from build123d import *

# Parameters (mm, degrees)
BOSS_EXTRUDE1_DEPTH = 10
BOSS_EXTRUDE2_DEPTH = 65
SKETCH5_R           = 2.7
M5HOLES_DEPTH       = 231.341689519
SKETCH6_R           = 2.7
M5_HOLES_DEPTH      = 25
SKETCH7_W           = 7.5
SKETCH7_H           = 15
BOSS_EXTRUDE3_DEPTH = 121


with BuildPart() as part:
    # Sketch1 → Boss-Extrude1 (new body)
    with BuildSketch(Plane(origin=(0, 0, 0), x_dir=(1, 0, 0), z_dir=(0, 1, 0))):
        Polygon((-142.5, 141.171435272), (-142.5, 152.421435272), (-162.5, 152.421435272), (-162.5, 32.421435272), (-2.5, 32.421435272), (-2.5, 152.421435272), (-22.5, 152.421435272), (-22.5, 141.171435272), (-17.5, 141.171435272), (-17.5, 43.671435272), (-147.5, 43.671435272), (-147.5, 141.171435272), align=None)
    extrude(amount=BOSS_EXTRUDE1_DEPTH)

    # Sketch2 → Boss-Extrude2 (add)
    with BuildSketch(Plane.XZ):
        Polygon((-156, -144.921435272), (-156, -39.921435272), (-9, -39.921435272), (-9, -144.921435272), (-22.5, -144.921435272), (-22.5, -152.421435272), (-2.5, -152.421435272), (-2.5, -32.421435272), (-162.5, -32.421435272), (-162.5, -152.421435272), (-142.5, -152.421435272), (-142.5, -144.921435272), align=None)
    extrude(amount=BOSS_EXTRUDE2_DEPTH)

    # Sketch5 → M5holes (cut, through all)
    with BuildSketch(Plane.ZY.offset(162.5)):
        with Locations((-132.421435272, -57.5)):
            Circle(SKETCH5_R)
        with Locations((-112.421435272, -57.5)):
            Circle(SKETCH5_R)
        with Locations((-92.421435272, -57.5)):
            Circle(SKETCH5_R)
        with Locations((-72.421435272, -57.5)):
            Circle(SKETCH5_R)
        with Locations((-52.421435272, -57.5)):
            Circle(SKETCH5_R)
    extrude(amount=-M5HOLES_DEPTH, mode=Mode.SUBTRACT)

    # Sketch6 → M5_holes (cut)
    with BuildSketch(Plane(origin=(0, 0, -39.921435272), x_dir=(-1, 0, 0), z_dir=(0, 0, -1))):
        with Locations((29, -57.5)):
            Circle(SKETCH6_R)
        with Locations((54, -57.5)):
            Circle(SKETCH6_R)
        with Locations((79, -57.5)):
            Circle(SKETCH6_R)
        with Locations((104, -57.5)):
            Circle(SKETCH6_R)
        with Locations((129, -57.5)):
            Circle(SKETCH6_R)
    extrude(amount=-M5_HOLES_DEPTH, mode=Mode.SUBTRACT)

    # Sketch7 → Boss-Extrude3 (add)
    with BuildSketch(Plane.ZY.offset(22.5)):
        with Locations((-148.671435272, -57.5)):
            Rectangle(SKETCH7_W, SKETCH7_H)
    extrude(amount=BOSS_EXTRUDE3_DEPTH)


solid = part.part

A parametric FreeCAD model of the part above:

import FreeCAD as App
import Part
import Sketcher


def add_polygon(sketch, points):
    """Adds a closed chain of lines whose ends are joined by coincident constraints."""
    first, n = sketch.GeometryCount, len(points)
    for a, b in zip(points, points[1:] + points[:1]):
        sketch.addGeometry(Part.LineSegment(App.Vector(*a, 0), App.Vector(*b, 0)), False)
    for i in range(n):
        sketch.addConstraint(Sketcher.Constraint("Coincident", first + i, 2, first + (i + 1) % n, 1))

doc = App.newDocument("Part")
body = doc.addObject("PartDesign::Body", "Body")

# Sketch on XZ plane
sketch1 = body.newObject("Sketcher::SketchObject", "Sketch")
sketch1.AttachmentSupport = (doc.getObject("XZ_Plane"), [""])
sketch1.MapMode = "FlatFace"
add_polygon(sketch1, [(-142.5, -141.171435), (-142.5, -152.421435), (-162.5, -152.421435), (-162.5, -32.421435), (-2.5, -32.421435), (-2.5, -152.421435), (-22.5, -152.421435), (-22.5, -141.171435), (-17.5, -141.171435), (-17.5, -43.671435), (-147.5, -43.671435), (-147.5, -141.171435)])  # lines 0-11
sketch1.addConstraint(Sketcher.Constraint("Vertical", 0))
sketch1.addConstraint(Sketcher.Constraint("Horizontal", 1))
sketch1.addConstraint(Sketcher.Constraint("Vertical", 2))
sketch1.addConstraint(Sketcher.Constraint("Horizontal", 3))
sketch1.addConstraint(Sketcher.Constraint("Vertical", 4))
sketch1.addConstraint(Sketcher.Constraint("Horizontal", 5))
sketch1.addConstraint(Sketcher.Constraint("Vertical", 6))
sketch1.addConstraint(Sketcher.Constraint("Horizontal", 7))
sketch1.addConstraint(Sketcher.Constraint("Vertical", 8))
sketch1.addConstraint(Sketcher.Constraint("Horizontal", 9))
sketch1.addConstraint(Sketcher.Constraint("Vertical", 10))
sketch1.addConstraint(Sketcher.Constraint("Horizontal", 11))
sketch1.addConstraint(Sketcher.Constraint("Horizontal", 1, 2, 4, 2))
sketch1.addConstraint(Sketcher.Constraint("Horizontal", 7, 2, 10, 2))
sketch1.addConstraint(Sketcher.Constraint("Equal", 1, 5))
sketch1.addConstraint(Sketcher.Constraint("Equal", 7, 11))
sketch1.addConstraint(Sketcher.Constraint("DistanceX", 1, 2, 1, 1, 20.0))
sketch1.addConstraint(Sketcher.Constraint("DistanceX", 3, 1, 3, 2, 160.0))
sketch1.addConstraint(Sketcher.Constraint("DistanceX", 7, 1, 7, 2, 5.0))
sketch1.addConstraint(Sketcher.Constraint("DistanceY", 2, 1, 2, 2, 120.0))
sketch1.addConstraint(Sketcher.Constraint("DistanceY", 8, 1, 8, 2, 97.5))
sketch1.addConstraint(Sketcher.Constraint("DistanceY", 0, 2, 0, 1, 11.25))
sketch1.addConstraint(Sketcher.Constraint("DistanceX", 0, 2, -1, 1, 142.5))
sketch1.addConstraint(Sketcher.Constraint("DistanceY", 0, 2, -1, 1, 152.421435))
pad1 = body.newObject("PartDesign::Pad", "Pad")
pad1.Profile = sketch1
pad1.Length = 10
pad1.Reversed = True

# Sketch on XZ plane
sketch2 = body.newObject("Sketcher::SketchObject", "Sketch001")
sketch2.AttachmentSupport = (doc.getObject("XZ_Plane"), [""])
sketch2.MapMode = "FlatFace"
add_polygon(sketch2, [(-156, -144.921435), (-156, -39.921435), (-9, -39.921435), (-9, -144.921435), (-22.5, -144.921435), (-22.5, -152.421435), (-2.5, -152.421435), (-2.5, -32.421435), (-162.5, -32.421435), (-162.5, -152.421435), (-142.5, -152.421435), (-142.5, -144.921435)])  # lines 0-11
sketch2.addConstraint(Sketcher.Constraint("Vertical", 0))
sketch2.addConstraint(Sketcher.Constraint("Horizontal", 1))
sketch2.addConstraint(Sketcher.Constraint("Vertical", 2))
sketch2.addConstraint(Sketcher.Constraint("Horizontal", 3))
sketch2.addConstraint(Sketcher.Constraint("Vertical", 4))
sketch2.addConstraint(Sketcher.Constraint("Horizontal", 5))
sketch2.addConstraint(Sketcher.Constraint("Vertical", 6))
sketch2.addConstraint(Sketcher.Constraint("Horizontal", 7))
sketch2.addConstraint(Sketcher.Constraint("Vertical", 8))
sketch2.addConstraint(Sketcher.Constraint("Horizontal", 9))
sketch2.addConstraint(Sketcher.Constraint("Vertical", 10))
sketch2.addConstraint(Sketcher.Constraint("Horizontal", 11))
sketch2.addConstraint(Sketcher.Constraint("Horizontal", 5, 2, 8, 2))
sketch2.addConstraint(Sketcher.Constraint("Horizontal", 3, 2, 10, 2))
sketch2.addConstraint(Sketcher.Constraint("Equal", 5, 9))
sketch2.addConstraint(Sketcher.Constraint("Equal", 3, 11))
sketch2.addConstraint(Sketcher.Constraint("DistanceX", 1, 1, 1, 2, 147.0))
sketch2.addConstraint(Sketcher.Constraint("DistanceX", 5, 1, 5, 2, 20.0))
sketch2.addConstraint(Sketcher.Constraint("DistanceX", 7, 2, 7, 1, 160.0))
sketch2.addConstraint(Sketcher.Constraint("DistanceY", 0, 1, 0, 2, 105.0))
sketch2.addConstraint(Sketcher.Constraint("DistanceY", 6, 1, 6, 2, 120.0))
sketch2.addConstraint(Sketcher.Constraint("DistanceY", 4, 2, 4, 1, 7.5))
sketch2.addConstraint(Sketcher.Constraint("DistanceX", 0, 2, -1, 1, 156.0))
sketch2.addConstraint(Sketcher.Constraint("DistanceY", 0, 2, -1, 1, 39.921435))
pad2 = body.newObject("PartDesign::Pad", "Pad001")
pad2.Profile = sketch2
pad2.Length = 65

# Sketch on YZ plane
sketch3 = body.newObject("Sketcher::SketchObject", "Sketch002")
sketch3.AttachmentSupport = (doc.getObject("YZ_Plane"), [""])
sketch3.MapMode = "FlatFace"
sketch3.AttachmentOffset = App.Placement(App.Vector(0, 0, -162.5), App.Rotation())
sketch3.addGeometry(Part.Circle(App.Vector(-57.5, -132.421435, 0), App.Vector(0, 0, 1), 2.7), False)
sketch3.addGeometry(Part.Circle(App.Vector(-57.5, -112.421435, 0), App.Vector(0, 0, 1), 2.7), False)
sketch3.addGeometry(Part.Circle(App.Vector(-57.5, -92.421435, 0), App.Vector(0, 0, 1), 2.7), False)
sketch3.addGeometry(Part.Circle(App.Vector(-57.5, -72.421435, 0), App.Vector(0, 0, 1), 2.7), False)
sketch3.addGeometry(Part.Circle(App.Vector(-57.5, -52.421435, 0), App.Vector(0, 0, 1), 2.7), False)
sketch3.addConstraint(Sketcher.Constraint("Equal", 0, 1))
sketch3.addConstraint(Sketcher.Constraint("Equal", 1, 2))
sketch3.addConstraint(Sketcher.Constraint("Equal", 2, 3))
sketch3.addConstraint(Sketcher.Constraint("Equal", 3, 4))
sketch3.addConstraint(Sketcher.Constraint("Vertical", 0, 3, 1, 3))
sketch3.addConstraint(Sketcher.Constraint("Vertical", 1, 3, 2, 3))
sketch3.addConstraint(Sketcher.Constraint("Vertical", 2, 3, 3, 3))
sketch3.addConstraint(Sketcher.Constraint("Vertical", 3, 3, 4, 3))
sketch3.addConstraint(Sketcher.Constraint("Diameter", 0, 5.4))
sketch3.addConstraint(Sketcher.Constraint("DistanceY", 0, 3, 1, 3, 20.0))
sketch3.addConstraint(Sketcher.Constraint("DistanceY", 1, 3, 2, 3, 20.0))
sketch3.addConstraint(Sketcher.Constraint("DistanceY", 2, 3, 3, 3, 20.0))
sketch3.addConstraint(Sketcher.Constraint("DistanceY", 3, 3, 4, 3, 20.0))
sketch3.addConstraint(Sketcher.Constraint("DistanceX", 0, 3, -1, 1, 57.5))
sketch3.addConstraint(Sketcher.Constraint("DistanceY", 0, 3, -1, 1, 132.421435))
pocket1 = body.newObject("PartDesign::Pocket", "Pocket")
pocket1.Profile = sketch3
pocket1.Type = "ThroughAll"
pocket1.Reversed = True

# Sketch on XY plane
sketch4 = body.newObject("Sketcher::SketchObject", "Sketch003")
sketch4.AttachmentSupport = (doc.getObject("XY_Plane"), [""])
sketch4.MapMode = "FlatFace"
sketch4.AttachmentOffset = App.Placement(App.Vector(0, 0, -39.921435), App.Rotation())
sketch4.addGeometry(Part.Circle(App.Vector(-29, -57.5, 0), App.Vector(0, 0, 1), 2.7), False)
sketch4.addGeometry(Part.Circle(App.Vector(-54, -57.5, 0), App.Vector(0, 0, 1), 2.7), False)
sketch4.addGeometry(Part.Circle(App.Vector(-79, -57.5, 0), App.Vector(0, 0, 1), 2.7), False)
sketch4.addGeometry(Part.Circle(App.Vector(-104, -57.5, 0), App.Vector(0, 0, 1), 2.7), False)
sketch4.addGeometry(Part.Circle(App.Vector(-129, -57.5, 0), App.Vector(0, 0, 1), 2.7), False)
sketch4.addConstraint(Sketcher.Constraint("Equal", 0, 1))
sketch4.addConstraint(Sketcher.Constraint("Equal", 1, 2))
sketch4.addConstraint(Sketcher.Constraint("Equal", 2, 3))
sketch4.addConstraint(Sketcher.Constraint("Equal", 3, 4))
sketch4.addConstraint(Sketcher.Constraint("Horizontal", 0, 3, 1, 3))
sketch4.addConstraint(Sketcher.Constraint("Horizontal", 1, 3, 2, 3))
sketch4.addConstraint(Sketcher.Constraint("Horizontal", 2, 3, 3, 3))
sketch4.addConstraint(Sketcher.Constraint("Horizontal", 3, 3, 4, 3))
sketch4.addConstraint(Sketcher.Constraint("Diameter", 0, 5.4))
sketch4.addConstraint(Sketcher.Constraint("DistanceX", 0, 3, -1, 1, 29.0))
sketch4.addConstraint(Sketcher.Constraint("DistanceX", 1, 3, -1, 1, 54.0))
sketch4.addConstraint(Sketcher.Constraint("DistanceX", 2, 3, -1, 1, 79.0))
sketch4.addConstraint(Sketcher.Constraint("DistanceX", 3, 3, -1, 1, 104.0))
sketch4.addConstraint(Sketcher.Constraint("DistanceX", 4, 3, -1, 1, 129.0))
sketch4.addConstraint(Sketcher.Constraint("DistanceY", 0, 3, -1, 1, 57.5))
pocket2 = body.newObject("PartDesign::Pocket", "Pocket001")
pocket2.Profile = sketch4
pocket2.Length = 25
pocket2.Reversed = True

# Sketch on YZ plane
sketch5 = body.newObject("Sketcher::SketchObject", "Sketch004")
sketch5.AttachmentSupport = (doc.getObject("YZ_Plane"), [""])
sketch5.MapMode = "FlatFace"
sketch5.AttachmentOffset = App.Placement(App.Vector(0, 0, -22.5), App.Rotation())
add_polygon(sketch5, [(-50, -152.421435), (-65, -152.421435), (-65, -144.921435), (-50, -144.921435)])  # lines 0-3
sketch5.addConstraint(Sketcher.Constraint("Horizontal", 0))
sketch5.addConstraint(Sketcher.Constraint("Vertical", 1))
sketch5.addConstraint(Sketcher.Constraint("Horizontal", 2))
sketch5.addConstraint(Sketcher.Constraint("Vertical", 3))
sketch5.addConstraint(Sketcher.Constraint("DistanceX", 0, 2, 0, 1, 15.0))
sketch5.addConstraint(Sketcher.Constraint("DistanceY", 1, 1, 1, 2, 7.5))
sketch5.addConstraint(Sketcher.Constraint("DistanceX", 0, 2, -1, 1, 65.0))
sketch5.addConstraint(Sketcher.Constraint("DistanceY", 0, 2, -1, 1, 152.421435))
pad3 = body.newObject("PartDesign::Pad", "Pad002")
pad3.Profile = sketch5
pad3.Length = 121
pad3.Reversed = True

doc.recompute()
